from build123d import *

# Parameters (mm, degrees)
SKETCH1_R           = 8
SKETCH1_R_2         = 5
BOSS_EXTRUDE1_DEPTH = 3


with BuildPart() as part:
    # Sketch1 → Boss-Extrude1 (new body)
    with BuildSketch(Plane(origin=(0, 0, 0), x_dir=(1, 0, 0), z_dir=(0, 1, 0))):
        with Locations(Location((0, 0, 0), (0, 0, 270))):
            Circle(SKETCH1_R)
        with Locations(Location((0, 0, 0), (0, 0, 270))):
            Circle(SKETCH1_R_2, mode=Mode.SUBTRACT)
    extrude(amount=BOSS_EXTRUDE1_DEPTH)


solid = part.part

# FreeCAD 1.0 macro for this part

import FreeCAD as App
import Part
import Sketcher
from FreeCAD import Vector
Q = App.Units.Quantity

doc = App.newDocument("Part")
body = doc.addObject("PartDesign::Body", "Body")

# Sketch on XZ plane
sketch1 = body.newObject("Sketcher::SketchObject", "Sketch")
sketch1.AttachmentSupport = (doc.getObject("XZ_Plane"), [""])
sketch1.MapMode = "FlatFace"
sketch1.addGeometry([
    Part.Circle(Vector(0, 0, 0), Vector(0, 0, 1), 8),
    Part.Circle(Vector(0, 0, 0), Vector(0, 0, 1), 5),
], False)
sketch1.addConstraint([
    Sketcher.Constraint("Coincident", 0, 3, -1, 1),
    Sketcher.Constraint("Coincident", 1, 3, -1, 1),
    Sketcher.Constraint("Diameter", 0, Q("16 mm")),
    Sketcher.Constraint("Diameter", 1, Q("10 mm")),
])
pad1 = body.newObject("PartDesign::Pad", "Pad")
pad1.Profile = sketch1
pad1.Length = 3
pad1.Reversed = True

doc.recompute()
